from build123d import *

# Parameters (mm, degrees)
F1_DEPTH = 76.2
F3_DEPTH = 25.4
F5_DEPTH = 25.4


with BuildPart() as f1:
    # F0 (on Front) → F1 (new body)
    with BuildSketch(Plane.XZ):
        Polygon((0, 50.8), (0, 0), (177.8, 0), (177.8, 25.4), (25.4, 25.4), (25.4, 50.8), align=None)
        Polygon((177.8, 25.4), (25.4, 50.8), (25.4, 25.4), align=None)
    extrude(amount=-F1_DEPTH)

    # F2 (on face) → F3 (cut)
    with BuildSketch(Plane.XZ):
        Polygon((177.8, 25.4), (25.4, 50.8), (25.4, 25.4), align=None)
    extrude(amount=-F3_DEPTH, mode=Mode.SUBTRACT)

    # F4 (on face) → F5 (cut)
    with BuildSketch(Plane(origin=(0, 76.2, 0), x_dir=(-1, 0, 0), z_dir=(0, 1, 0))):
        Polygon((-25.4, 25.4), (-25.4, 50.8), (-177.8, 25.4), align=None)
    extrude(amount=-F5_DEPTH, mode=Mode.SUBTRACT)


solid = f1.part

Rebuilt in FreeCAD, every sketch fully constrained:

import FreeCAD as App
import Part
import Sketcher

V = App.Vector
Q = App.Units.Quantity

doc = App.newDocument("Part")
body = doc.addObject("PartDesign::Body", "Body")

# Sketch on XZ plane
sketch1 = body.newObject("Sketcher::SketchObject", "Sketch")
sketch1.AttachmentSupport = (doc.getObject("XZ_Plane"), [""])
sketch1.MapMode = "FlatFace"
sketch1.addGeometry([
    Part.LineSegment(V(0, 51, 0), V(0, 0, 0)),  # 0
    Part.LineSegment(V(0, 0, 0), V(178, 0, 0)),  # 1
    Part.LineSegment(V(178, 0, 0), V(178, 25, 0)),  # 2
    Part.LineSegment(V(178, 25, 0), V(25, 51, 0)),  # 3
    Part.LineSegment(V(25, 51, 0), V(0, 51, 0)),  # 4
], False)
sketch1.addConstraint([
    Sketcher.Constraint("Coincident", 0, 2, 1, 1),
    Sketcher.Constraint("Coincident", 1, 2, 2, 1),
    Sketcher.Constraint("Coincident", 2, 2, 3, 1),
    Sketcher.Constraint("Coincident", 3, 2, 4, 1),
    Sketcher.Constraint("Coincident", 4, 2, 0, 1),
    Sketcher.Constraint("Vertical", 0),
    Sketcher.Constraint("Horizontal", 1),
    Sketcher.Constraint("Vertical", 2),
    Sketcher.Constraint("Horizontal", 4),
    Sketcher.Constraint("Coincident", 0, 2, -1, 1),
    Sketcher.Constraint("Equal", 4, 2),
    Sketcher.Constraint("DistanceX", 1, 1, 1, 2, Q("7 in")),
    Sketcher.Constraint("DistanceX", 4, 2, 4, 1, Q("1 in")),
    Sketcher.Constraint("DistanceY", 0, 2, 0, 1, Q("2 in")),
])
pad1 = body.newObject("PartDesign::Pad", "Pad")
pad1.Profile = sketch1
pad1.Length = Q("3 in")
pad1.Reversed = True

# Sketch on XZ plane
sketch2 = body.newObject("Sketcher::SketchObject", "Sketch001")
sketch2.AttachmentSupport = (doc.getObject("XZ_Plane"), [""])
sketch2.MapMode = "FlatFace"
sketch2.addGeometry([
    Part.LineSegment(V(178, 25, 0), V(25, 51, 0)),
    Part.LineSegment(V(25, 51, 0), V(25, 25, 0)),
    Part.LineSegment(V(25, 25, 0), V(178, 25, 0)),
], False)
sketch2.addConstraint([
    Sketcher.Constraint("Coincident", 0, 2, 1, 1),
    Sketcher.Constraint("Coincident", 1, 2, 2, 1),
    Sketcher.Constraint("Coincident", 2, 2, 0, 1),
    Sketcher.Constraint("Vertical", 1),
    Sketcher.Constraint("Horizontal", 2),
    Sketcher.Constraint("DistanceX", 2, 1, 2, 2, Q("6 in")),
    Sketcher.Constraint("DistanceY", 1, 2, 1, 1, Q("1 in")),
    Sketcher.Constraint("DistanceX", -1, 1, 0, 2, Q("1 in")),
    Sketcher.Constraint("DistanceY", -1, 1, 0, 2, Q("2 in")),
])
pocket1 = body.newObject("PartDesign::Pocket", "Pocket")
pocket1.Profile = sketch2
pocket1.Length = Q("1 in")

# Sketch on XZ plane
sketch3 = body.newObject("Sketcher::SketchObject", "Sketch002")
sketch3.AttachmentSupport = (doc.getObject("XZ_Plane"), [""])
sketch3.MapMode = "FlatFace"
sketch3.AttachmentOffset = App.Placement(V(0, 0, -3 * 25.4), App.Rotation())
sketch3.addGeometry([
    Part.LineSegment(V(25, 25, 0), V(25, 51, 0)),
    Part.LineSegment(V(25, 51, 0), V(178, 25, 0)),
    Part.LineSegment(V(178, 25, 0), V(25, 25, 0)),
], False)
sketch3.addConstraint([
    Sketcher.Constraint("Coincident", 0, 2, 1, 1),
    Sketcher.Constraint("Coincident", 1, 2, 2, 1),
    Sketcher.Constraint("Coincident", 2, 2, 0, 1),
    Sketcher.Constraint("Vertical", 0),
    Sketcher.Constraint("Horizontal", 2),
    Sketcher.Constraint("DistanceX", 2, 2, 2, 1, Q("6 in")),
    Sketcher.Constraint("DistanceY", 0, 1, 0, 2, Q("1 in")),
    Sketcher.Constraint("DistanceX", -1, 1, 0, 2, Q("1 in")),
    Sketcher.Constraint("DistanceY", -1, 1, 0, 2, Q("2 in")),
])
pocket2 = body.newObject("PartDesign::Pocket", "Pocket001")
pocket2.Profile = sketch3
pocket2.Length = Q("1 in")
pocket2.Reversed = True

doc.recompute()
